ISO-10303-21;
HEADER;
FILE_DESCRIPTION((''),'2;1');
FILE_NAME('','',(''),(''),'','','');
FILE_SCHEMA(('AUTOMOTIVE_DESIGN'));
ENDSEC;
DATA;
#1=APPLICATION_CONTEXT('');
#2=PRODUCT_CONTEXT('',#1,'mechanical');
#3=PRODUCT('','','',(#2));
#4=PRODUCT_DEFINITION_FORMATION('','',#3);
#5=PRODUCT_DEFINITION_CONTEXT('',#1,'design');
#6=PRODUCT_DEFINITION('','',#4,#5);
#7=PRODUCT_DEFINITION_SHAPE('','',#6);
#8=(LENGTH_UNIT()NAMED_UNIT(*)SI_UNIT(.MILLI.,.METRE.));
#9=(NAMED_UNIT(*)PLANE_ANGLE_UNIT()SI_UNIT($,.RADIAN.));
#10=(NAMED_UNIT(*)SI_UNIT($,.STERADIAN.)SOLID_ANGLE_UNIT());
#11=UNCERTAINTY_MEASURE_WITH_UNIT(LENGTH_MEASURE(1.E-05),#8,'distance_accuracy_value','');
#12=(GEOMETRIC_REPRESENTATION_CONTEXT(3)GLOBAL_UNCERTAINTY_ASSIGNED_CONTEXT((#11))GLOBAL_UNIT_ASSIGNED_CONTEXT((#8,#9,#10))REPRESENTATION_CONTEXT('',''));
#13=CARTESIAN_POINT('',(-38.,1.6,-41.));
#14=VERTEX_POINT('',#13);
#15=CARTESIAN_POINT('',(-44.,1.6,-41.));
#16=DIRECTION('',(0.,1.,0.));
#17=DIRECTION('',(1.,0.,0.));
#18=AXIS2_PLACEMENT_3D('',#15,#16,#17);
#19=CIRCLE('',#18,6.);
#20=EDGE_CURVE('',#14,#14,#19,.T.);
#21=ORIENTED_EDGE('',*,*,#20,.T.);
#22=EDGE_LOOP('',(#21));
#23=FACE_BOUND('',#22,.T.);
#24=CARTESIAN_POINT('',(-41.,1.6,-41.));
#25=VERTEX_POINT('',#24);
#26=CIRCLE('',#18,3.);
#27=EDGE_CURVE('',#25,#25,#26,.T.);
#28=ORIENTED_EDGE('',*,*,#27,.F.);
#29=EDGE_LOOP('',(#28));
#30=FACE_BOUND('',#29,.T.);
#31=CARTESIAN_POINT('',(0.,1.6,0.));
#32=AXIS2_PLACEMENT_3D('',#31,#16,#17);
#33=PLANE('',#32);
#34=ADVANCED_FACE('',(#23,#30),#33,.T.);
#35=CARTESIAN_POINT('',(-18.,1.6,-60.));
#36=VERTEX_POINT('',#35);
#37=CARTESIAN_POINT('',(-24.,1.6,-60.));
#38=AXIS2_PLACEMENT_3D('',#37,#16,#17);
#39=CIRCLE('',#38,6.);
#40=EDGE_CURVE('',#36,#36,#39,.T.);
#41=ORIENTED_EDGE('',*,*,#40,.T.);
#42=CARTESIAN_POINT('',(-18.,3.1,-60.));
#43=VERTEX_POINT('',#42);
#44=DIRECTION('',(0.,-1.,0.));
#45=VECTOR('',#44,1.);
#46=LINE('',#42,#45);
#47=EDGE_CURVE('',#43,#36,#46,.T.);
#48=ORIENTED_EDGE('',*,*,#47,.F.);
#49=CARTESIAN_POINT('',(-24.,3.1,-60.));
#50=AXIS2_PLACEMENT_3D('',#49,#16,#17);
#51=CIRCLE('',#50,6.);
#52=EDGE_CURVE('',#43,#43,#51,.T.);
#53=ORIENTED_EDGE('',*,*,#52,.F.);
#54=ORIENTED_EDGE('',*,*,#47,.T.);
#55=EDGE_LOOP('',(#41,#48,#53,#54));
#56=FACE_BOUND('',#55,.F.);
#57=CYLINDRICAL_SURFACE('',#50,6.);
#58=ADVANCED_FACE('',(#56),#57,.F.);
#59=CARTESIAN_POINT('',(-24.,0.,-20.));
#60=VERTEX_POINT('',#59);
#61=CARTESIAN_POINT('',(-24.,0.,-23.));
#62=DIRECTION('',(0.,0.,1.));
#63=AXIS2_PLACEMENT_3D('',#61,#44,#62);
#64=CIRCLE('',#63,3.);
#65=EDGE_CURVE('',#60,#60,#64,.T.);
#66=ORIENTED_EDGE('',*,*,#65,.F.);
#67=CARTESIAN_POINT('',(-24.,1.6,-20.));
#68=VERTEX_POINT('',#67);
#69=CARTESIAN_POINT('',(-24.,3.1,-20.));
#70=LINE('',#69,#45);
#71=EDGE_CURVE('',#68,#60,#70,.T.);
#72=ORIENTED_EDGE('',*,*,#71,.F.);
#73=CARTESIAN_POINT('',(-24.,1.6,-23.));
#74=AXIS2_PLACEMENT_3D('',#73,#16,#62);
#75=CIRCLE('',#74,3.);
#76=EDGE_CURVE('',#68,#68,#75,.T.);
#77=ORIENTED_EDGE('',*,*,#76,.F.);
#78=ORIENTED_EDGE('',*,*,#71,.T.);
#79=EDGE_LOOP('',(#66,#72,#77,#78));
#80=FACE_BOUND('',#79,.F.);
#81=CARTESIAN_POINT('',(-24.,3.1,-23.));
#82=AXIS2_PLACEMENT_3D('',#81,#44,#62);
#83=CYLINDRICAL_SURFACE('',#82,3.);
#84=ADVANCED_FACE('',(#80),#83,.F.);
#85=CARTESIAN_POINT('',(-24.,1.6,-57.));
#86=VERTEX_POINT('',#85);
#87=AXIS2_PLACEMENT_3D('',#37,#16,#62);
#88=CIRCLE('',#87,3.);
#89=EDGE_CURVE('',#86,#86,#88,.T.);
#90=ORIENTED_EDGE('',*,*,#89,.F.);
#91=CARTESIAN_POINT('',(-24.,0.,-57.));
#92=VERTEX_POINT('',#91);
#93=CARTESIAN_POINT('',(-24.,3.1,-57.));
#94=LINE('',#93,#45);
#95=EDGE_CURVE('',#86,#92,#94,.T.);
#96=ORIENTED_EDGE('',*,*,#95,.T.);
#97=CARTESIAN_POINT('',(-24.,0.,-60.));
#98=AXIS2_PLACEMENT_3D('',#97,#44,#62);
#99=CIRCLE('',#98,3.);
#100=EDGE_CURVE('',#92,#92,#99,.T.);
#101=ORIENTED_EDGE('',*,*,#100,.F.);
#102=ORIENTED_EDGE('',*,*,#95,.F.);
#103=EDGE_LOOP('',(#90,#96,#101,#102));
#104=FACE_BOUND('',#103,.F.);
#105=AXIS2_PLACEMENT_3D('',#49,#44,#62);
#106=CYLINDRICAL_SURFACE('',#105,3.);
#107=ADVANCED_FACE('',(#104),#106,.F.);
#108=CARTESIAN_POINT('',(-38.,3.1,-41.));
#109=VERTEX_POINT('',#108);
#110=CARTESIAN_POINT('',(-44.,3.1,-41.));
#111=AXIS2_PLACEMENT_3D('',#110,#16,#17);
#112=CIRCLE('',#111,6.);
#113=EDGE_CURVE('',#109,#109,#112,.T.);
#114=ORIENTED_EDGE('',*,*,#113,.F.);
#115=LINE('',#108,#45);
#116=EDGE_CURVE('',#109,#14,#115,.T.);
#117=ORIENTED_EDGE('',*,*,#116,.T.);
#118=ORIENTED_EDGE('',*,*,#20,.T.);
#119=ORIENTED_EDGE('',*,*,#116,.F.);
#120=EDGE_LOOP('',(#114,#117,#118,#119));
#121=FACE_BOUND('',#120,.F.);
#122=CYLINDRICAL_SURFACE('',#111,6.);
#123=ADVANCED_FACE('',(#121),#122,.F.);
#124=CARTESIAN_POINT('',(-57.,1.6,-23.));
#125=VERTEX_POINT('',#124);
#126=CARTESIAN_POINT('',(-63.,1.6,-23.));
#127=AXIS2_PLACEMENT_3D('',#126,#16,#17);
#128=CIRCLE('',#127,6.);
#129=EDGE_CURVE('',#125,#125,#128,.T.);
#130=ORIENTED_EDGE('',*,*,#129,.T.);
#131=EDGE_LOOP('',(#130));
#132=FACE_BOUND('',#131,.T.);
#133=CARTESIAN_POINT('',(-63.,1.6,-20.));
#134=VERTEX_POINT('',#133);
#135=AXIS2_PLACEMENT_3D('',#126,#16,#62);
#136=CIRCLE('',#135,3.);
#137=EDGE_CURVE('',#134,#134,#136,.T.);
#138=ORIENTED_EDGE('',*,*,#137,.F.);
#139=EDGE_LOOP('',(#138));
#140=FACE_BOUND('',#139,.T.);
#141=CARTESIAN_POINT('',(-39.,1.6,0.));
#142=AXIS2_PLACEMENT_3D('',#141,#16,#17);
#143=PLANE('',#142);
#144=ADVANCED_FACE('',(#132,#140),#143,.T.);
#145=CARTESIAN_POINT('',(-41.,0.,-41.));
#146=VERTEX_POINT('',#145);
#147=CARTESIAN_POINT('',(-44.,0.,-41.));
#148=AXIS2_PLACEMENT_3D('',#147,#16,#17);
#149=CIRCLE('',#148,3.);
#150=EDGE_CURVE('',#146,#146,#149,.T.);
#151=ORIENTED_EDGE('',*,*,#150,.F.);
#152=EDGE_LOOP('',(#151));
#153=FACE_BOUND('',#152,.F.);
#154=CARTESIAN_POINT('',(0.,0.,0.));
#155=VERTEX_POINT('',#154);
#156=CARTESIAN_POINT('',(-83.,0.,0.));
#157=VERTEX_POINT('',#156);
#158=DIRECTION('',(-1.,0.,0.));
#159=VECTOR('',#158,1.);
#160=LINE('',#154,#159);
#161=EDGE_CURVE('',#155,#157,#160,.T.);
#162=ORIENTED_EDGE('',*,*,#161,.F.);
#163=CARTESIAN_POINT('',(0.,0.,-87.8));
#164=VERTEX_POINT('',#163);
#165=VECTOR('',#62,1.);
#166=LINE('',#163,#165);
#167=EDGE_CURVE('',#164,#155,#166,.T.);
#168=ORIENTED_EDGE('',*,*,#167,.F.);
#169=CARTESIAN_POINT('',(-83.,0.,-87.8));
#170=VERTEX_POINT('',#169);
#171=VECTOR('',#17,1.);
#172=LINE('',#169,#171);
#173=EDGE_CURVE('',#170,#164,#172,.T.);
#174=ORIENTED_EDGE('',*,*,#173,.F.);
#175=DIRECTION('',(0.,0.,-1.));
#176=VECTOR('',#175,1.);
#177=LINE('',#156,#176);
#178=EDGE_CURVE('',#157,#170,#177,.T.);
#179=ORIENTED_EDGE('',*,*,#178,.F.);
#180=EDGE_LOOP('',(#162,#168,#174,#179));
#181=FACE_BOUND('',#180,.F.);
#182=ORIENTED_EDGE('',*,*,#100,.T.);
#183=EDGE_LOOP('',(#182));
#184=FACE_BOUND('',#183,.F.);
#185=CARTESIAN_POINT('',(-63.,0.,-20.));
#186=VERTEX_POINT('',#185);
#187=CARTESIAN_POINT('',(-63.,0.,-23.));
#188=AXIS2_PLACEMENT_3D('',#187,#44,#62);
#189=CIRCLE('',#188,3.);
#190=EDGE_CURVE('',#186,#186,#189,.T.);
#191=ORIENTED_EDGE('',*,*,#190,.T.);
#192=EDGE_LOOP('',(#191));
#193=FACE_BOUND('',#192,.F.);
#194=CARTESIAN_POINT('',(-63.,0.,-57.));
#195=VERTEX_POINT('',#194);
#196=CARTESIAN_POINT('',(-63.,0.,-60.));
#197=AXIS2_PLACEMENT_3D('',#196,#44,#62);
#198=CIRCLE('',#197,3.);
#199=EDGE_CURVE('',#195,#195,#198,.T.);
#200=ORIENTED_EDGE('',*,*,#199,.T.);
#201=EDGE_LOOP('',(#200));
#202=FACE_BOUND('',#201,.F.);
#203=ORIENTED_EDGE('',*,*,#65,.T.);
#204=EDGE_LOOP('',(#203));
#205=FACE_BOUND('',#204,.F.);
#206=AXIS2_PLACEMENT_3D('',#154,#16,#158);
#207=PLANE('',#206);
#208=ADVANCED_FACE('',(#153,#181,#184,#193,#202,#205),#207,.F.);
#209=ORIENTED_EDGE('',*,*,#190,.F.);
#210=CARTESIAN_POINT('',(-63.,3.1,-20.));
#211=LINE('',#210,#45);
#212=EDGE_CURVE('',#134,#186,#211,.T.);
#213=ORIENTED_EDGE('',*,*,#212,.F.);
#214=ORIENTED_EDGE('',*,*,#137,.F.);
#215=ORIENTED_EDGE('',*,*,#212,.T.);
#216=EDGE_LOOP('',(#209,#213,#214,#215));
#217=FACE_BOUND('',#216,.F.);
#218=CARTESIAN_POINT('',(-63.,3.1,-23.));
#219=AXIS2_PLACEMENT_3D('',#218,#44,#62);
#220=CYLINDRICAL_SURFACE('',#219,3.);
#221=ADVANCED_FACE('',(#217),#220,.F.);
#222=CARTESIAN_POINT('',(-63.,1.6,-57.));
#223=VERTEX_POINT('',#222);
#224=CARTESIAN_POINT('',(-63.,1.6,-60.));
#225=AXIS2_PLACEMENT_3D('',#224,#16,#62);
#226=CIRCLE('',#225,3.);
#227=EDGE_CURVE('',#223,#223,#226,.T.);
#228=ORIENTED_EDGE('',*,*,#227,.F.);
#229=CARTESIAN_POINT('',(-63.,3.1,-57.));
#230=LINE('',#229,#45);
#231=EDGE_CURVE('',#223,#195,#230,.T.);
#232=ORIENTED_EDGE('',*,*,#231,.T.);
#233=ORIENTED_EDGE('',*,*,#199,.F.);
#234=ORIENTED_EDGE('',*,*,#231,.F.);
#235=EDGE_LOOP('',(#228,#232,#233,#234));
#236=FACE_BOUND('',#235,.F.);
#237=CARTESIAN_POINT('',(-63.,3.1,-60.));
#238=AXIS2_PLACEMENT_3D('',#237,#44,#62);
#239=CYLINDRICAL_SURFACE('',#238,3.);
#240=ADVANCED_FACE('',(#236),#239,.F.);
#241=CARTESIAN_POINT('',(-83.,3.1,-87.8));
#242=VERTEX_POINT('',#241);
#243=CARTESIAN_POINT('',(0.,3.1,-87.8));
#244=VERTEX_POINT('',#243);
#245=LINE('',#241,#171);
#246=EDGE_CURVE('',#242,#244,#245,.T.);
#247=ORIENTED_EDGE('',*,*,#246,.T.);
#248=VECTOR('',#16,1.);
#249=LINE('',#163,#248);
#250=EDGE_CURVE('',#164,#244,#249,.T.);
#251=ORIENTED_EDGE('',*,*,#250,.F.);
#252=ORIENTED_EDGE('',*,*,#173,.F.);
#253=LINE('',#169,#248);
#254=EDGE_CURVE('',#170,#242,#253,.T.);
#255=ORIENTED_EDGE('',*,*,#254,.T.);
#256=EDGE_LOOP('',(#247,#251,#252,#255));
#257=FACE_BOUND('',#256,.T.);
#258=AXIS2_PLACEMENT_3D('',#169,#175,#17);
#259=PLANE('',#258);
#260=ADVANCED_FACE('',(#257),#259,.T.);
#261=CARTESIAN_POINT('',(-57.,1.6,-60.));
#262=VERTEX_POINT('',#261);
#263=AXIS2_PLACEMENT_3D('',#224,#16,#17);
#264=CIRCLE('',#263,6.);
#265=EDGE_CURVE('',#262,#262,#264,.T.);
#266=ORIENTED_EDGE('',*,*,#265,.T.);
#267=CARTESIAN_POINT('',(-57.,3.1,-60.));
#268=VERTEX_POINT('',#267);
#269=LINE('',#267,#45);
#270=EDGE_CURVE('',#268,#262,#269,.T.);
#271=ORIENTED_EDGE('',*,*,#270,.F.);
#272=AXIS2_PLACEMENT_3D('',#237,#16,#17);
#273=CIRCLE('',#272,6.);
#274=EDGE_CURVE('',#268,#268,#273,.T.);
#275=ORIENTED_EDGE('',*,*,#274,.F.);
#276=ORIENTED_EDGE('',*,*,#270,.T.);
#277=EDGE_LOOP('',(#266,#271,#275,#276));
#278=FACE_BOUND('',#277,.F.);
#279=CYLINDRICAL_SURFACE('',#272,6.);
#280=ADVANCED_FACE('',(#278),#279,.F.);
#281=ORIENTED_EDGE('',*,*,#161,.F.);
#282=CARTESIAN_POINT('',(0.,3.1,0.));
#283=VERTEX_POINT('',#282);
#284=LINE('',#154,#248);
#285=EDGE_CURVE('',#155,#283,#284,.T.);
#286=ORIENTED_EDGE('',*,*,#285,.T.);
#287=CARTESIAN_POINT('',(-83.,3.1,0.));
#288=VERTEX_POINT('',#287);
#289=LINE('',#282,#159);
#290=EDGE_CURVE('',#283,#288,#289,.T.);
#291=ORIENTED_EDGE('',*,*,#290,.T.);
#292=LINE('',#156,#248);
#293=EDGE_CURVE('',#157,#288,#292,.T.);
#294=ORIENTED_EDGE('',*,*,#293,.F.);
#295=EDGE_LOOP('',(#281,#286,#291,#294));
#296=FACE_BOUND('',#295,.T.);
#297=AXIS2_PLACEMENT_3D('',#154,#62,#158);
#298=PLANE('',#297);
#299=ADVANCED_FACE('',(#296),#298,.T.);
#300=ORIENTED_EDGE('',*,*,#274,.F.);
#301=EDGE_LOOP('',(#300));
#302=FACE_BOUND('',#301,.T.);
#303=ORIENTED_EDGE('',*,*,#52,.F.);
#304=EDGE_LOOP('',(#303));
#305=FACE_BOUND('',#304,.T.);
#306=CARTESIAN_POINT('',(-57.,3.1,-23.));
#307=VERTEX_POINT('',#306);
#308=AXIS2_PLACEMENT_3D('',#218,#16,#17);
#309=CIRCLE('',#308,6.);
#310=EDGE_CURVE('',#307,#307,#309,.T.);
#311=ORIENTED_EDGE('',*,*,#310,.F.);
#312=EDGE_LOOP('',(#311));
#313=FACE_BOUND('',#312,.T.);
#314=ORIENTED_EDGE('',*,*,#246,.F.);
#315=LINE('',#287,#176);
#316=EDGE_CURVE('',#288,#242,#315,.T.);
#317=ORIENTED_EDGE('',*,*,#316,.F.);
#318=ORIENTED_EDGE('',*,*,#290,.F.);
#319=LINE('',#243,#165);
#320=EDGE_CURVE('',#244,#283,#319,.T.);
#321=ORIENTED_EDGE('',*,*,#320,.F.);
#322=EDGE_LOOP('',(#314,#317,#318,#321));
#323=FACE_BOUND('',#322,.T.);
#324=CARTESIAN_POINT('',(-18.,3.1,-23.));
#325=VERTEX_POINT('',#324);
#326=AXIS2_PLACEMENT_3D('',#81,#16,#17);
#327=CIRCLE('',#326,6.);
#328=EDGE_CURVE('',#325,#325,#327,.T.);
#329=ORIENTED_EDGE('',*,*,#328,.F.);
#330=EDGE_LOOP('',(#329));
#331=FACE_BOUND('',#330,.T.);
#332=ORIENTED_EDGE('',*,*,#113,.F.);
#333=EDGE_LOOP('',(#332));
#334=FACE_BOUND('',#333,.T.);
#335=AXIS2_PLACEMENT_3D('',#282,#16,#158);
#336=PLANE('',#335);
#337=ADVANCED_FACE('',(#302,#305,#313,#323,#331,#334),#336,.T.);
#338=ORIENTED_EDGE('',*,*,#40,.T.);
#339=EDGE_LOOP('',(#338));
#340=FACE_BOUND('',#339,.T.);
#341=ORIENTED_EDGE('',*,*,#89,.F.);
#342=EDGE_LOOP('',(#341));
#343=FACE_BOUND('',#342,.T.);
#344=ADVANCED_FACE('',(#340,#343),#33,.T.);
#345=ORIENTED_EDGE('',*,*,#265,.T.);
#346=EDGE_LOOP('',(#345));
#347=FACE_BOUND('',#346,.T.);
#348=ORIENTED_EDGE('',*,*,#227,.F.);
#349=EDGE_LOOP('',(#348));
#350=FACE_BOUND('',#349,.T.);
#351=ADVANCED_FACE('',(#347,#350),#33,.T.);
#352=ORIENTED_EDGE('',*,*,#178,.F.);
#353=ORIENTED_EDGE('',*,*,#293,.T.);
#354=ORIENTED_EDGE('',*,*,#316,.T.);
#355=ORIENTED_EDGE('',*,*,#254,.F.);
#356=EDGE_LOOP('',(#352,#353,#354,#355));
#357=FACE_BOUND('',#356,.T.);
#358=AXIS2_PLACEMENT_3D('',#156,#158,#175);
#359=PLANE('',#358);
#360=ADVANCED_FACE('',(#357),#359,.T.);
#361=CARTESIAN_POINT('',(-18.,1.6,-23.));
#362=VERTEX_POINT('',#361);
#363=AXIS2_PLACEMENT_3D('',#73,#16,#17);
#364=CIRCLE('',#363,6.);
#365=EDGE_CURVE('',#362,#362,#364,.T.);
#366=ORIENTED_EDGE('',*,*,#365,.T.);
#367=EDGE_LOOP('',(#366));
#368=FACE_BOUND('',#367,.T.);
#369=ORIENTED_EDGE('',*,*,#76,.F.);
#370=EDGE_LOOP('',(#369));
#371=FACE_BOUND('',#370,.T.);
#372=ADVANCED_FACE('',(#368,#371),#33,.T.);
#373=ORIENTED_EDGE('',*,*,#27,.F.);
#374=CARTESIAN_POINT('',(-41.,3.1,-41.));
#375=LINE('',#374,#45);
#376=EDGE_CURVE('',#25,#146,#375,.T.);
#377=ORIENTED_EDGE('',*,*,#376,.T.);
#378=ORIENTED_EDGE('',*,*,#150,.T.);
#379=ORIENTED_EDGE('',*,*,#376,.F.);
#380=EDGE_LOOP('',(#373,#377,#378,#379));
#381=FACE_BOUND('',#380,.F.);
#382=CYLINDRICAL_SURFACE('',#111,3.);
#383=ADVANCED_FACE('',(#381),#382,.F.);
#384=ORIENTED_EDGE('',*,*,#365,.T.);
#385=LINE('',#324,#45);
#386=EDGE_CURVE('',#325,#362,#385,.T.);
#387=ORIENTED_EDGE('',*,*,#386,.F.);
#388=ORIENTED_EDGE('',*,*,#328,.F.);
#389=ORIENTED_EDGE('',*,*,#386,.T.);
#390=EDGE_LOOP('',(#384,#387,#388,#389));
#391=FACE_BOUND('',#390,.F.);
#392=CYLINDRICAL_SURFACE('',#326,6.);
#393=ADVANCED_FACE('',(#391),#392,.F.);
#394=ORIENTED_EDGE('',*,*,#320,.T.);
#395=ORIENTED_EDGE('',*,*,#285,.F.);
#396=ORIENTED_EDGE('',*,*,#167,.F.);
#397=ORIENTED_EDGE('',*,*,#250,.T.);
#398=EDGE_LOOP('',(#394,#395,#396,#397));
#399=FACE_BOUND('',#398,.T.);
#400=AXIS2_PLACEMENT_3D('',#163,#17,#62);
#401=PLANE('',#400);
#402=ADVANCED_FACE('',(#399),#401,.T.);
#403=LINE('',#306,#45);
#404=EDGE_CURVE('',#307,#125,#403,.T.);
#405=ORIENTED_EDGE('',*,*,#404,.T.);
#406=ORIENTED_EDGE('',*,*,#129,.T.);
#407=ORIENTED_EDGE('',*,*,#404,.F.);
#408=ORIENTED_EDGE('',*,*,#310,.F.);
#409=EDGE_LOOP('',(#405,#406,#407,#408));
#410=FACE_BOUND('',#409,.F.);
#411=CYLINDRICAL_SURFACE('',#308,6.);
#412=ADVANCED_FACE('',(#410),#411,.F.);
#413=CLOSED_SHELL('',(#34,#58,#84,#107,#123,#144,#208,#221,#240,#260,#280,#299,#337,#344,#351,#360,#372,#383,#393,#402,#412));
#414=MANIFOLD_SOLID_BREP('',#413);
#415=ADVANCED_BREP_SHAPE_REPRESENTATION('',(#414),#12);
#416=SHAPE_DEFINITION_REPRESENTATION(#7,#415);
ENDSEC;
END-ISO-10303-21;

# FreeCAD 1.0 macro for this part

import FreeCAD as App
import Part
import Sketcher


def add_polygon(sketch, points):
    """Adds a closed chain of lines whose ends are joined by coincident constraints."""
    first, n = sketch.GeometryCount, len(points)
    for a, b in zip(points, points[1:] + points[:1]):
        sketch.addGeometry(Part.LineSegment(App.Vector(*a, 0), App.Vector(*b, 0)), False)
    for i in range(n):
        sketch.addConstraint(Sketcher.Constraint("Coincident", first + i, 2, first + (i + 1) % n, 1))

doc = App.newDocument("Part")
body = doc.addObject("PartDesign::Body", "Body")

sketch1 = body.newObject("Sketcher::SketchObject", "Sketch")
sketch1.AttachmentSupport = (doc.getObject("XZ_Plane"), [""])
sketch1.MapMode = "FlatFace"
add_polygon(sketch1, [(-83, 0), (0, 0), (0, -88), (-83, -88)])
sketch1.addConstraint([
    Sketcher.Constraint("Horizontal", 0),
    Sketcher.Constraint("Vertical", 1),
    Sketcher.Constraint("Horizontal", 2),
    Sketcher.Constraint("Vertical", 3),
    Sketcher.Constraint("Coincident", 0, 2, -1, 1),
    Sketcher.Constraint("DistanceX", 0, 1, 0, 2, 83.0),
    Sketcher.Constraint("DistanceY", 1, 2, 1, 1, 87.8),
])
pad1 = body.newObject("PartDesign::Pad", "Pad")
pad1.Profile = sketch1
pad1.Length = 3.1
pad1.Reversed = True

sketch2 = body.newObject("Sketcher::SketchObject", "Sketch001")
sketch2.AttachmentSupport = (doc.getObject("XZ_Plane"), [""])
sketch2.MapMode = "FlatFace"
sketch2.AttachmentOffset = App.Placement(App.Vector(0, 0, -3.1), App.Rotation())
sketch2.addGeometry([
    Part.Circle(App.Vector(-24, -23, 0), App.Vector(0, 0, 1), 3),
    Part.Circle(App.Vector(-63, -23, 0), App.Vector(0, 0, 1), 3),
    Part.Circle(App.Vector(-63, -60, 0), App.Vector(0, 0, 1), 3),
    Part.Circle(App.Vector(-24, -60, 0), App.Vector(0, 0, 1), 3),
], False)
sketch2.addConstraint([
    Sketcher.Constraint("Equal", 0, 1),
    Sketcher.Constraint("Equal", 1, 2),
    Sketcher.Constraint("Equal", 2, 3),
    Sketcher.Constraint("Horizontal", 0, 3, 1, 3),
    Sketcher.Constraint("Horizontal", 2, 3, 3, 3),
    Sketcher.Constraint("Vertical", 1, 3, 2, 3),
    Sketcher.Constraint("Vertical", 0, 3, 3, 3),
    Sketcher.Constraint("Diameter", 0, 6.0),
    Sketcher.Constraint("DistanceX", 0, 3, -1, 1, 24.0),
    Sketcher.Constraint("DistanceY", 0, 3, -1, 1, 23.0),
    Sketcher.Constraint("DistanceX", 1, 3, -1, 1, 63.0),
    Sketcher.Constraint("DistanceY", 2, 3, -1, 1, 60.0),
])
doc.recompute()
hole = body.newObject("PartDesign::Hole", "Hole")
hole.Profile = sketch2
hole.ThreadType = "None"
hole.Diameter = 6
hole.DepthType = "ThroughAll"
hole.Reversed = True

sketch3 = body.newObject("Sketcher::SketchObject", "Sketch002")
sketch3.AttachmentSupport = (doc.getObject("XZ_Plane"), [""])
sketch3.MapMode = "FlatFace"
sketch3.AttachmentOffset = App.Placement(App.Vector(0, 0, -3.1), App.Rotation())
sketch3.addGeometry([
    Part.Circle(App.Vector(-24, -23, 0), App.Vector(0, 0, 1), 6),
    Part.Circle(App.Vector(-24, -23, 0), App.Vector(0, 0, 1), 3),
], False)
sketch3.addConstraint([
    Sketcher.Constraint("Coincident", 1, 3, 0, 3),
    Sketcher.Constraint("Diameter", 0, 12.0),
    Sketcher.Constraint("Diameter", 1, 6.0),
    Sketcher.Constraint("DistanceX", 0, 3, -1, 1, 24.0),
    Sketcher.Constraint("DistanceY", 0, 3, -1, 1, 23.0),
])
pocket1 = body.newObject("PartDesign::Pocket", "Pocket")
pocket1.Profile = sketch3
pocket1.Length = 1.5
pocket1.Reversed = True
doc.recompute()

linearpattern = body.newObject("PartDesign::LinearPattern", "LinearPattern")
linearpattern.Originals = [pocket1]
linearpattern.Direction = (doc.getObject("X_Axis"), [""])
linearpattern.Mode = "offset"
linearpattern.Offset = 39
linearpattern.Occurrences = 2
linearpattern.Reversed = True
body.Tip = linearpattern

sketch4 = body.newObject("Sketcher::SketchObject", "Sketch003")
sketch4.AttachmentSupport = (doc.getObject("XZ_Plane"), [""])
sketch4.MapMode = "FlatFace"
sketch4.AttachmentOffset = App.Placement(App.Vector(0, 0, -3.1), App.Rotation())
sketch4.addGeometry([
    Part.Circle(App.Vector(-63, -60, 0), App.Vector(0, 0, 1), 6),
    Part.Circle(App.Vector(-63, -60, 0), App.Vector(0, 0, 1), 3),
    Part.Circle(App.Vector(-24, -60, 0), App.Vector(0, 0, 1), 6),
    Part.Circle(App.Vector(-24, -60, 0), App.Vector(0, 0, 1), 3),
], False)
sketch4.addConstraint([
    Sketcher.Constraint("Coincident", 1, 3, 0, 3),
    Sketcher.Constraint("Coincident", 3, 3, 2, 3),
    Sketcher.Constraint("Equal", 0, 2),
    Sketcher.Constraint("Equal", 1, 3),
    Sketcher.Constraint("Horizontal", 1, 3, 2, 3),
    Sketcher.Constraint("Diameter", 0, 12.0),
    Sketcher.Constraint("Diameter", 1, 6.0),
    Sketcher.Constraint("DistanceX", 0, 3, -1, 1, 63.0),
    Sketcher.Constraint("DistanceY", 0, 3, -1, 1, 60.0),
    Sketcher.Constraint("DistanceX", 2, 3, -1, 1, 24.0),
])
pocket2 = body.newObject("PartDesign::Pocket", "Pocket001")
pocket2.Profile = sketch4
pocket2.Length = 1.5
pocket2.Reversed = True

sketch5 = body.newObject("Sketcher::SketchObject", "Sketch004")
sketch5.AttachmentSupport = (doc.getObject("XZ_Plane"), [""])
sketch5.MapMode = "FlatFace"
sketch5.AttachmentOffset = App.Placement(App.Vector(0, 0, -3.1), App.Rotation())
sketch5.addGeometry(Part.Circle(App.Vector(-44, -41, 0), App.Vector(0, 0, 1), 3), False)
sketch5.addConstraint([
    Sketcher.Constraint("Diameter", 0, 6.0),
    Sketcher.Constraint("DistanceX", 0, 3, -1, 1, 44.0),
    Sketcher.Constraint("DistanceY", 0, 3, -1, 1, 41.0),
])
pocket3 = body.newObject("PartDesign::Pocket", "Pocket002")
pocket3.Profile = sketch5
pocket3.Length = 5
pocket3.Reversed = True

sketch6 = body.newObject("Sketcher::SketchObject", "Sketch005")
sketch6.AttachmentSupport = (doc.getObject("XZ_Plane"), [""])
sketch6.MapMode = "FlatFace"
sketch6.AttachmentOffset = App.Placement(App.Vector(0, 0, -3.1), App.Rotation())
sketch6.addGeometry([
    Part.Circle(App.Vector(-44, -41, 0), App.Vector(0, 0, 1), 6),
    Part.Circle(App.Vector(-44, -41, 0), App.Vector(0, 0, 1), 3),
], False)
sketch6.addConstraint([
    Sketcher.Constraint("Coincident", 1, 3, 0, 3),
    Sketcher.Constraint("Diameter", 0, 12.0),
    Sketcher.Constraint("Diameter", 1, 6.0),
    Sketcher.Constraint("DistanceX", 0, 3, -1, 1, 44.0),
    Sketcher.Constraint("DistanceY", 0, 3, -1, 1, 41.0),
])
pocket4 = body.newObject("PartDesign::Pocket", "Pocket003")
pocket4.Profile = sketch6
pocket4.Length = 1.5
pocket4.Reversed = True

doc.recompute()
